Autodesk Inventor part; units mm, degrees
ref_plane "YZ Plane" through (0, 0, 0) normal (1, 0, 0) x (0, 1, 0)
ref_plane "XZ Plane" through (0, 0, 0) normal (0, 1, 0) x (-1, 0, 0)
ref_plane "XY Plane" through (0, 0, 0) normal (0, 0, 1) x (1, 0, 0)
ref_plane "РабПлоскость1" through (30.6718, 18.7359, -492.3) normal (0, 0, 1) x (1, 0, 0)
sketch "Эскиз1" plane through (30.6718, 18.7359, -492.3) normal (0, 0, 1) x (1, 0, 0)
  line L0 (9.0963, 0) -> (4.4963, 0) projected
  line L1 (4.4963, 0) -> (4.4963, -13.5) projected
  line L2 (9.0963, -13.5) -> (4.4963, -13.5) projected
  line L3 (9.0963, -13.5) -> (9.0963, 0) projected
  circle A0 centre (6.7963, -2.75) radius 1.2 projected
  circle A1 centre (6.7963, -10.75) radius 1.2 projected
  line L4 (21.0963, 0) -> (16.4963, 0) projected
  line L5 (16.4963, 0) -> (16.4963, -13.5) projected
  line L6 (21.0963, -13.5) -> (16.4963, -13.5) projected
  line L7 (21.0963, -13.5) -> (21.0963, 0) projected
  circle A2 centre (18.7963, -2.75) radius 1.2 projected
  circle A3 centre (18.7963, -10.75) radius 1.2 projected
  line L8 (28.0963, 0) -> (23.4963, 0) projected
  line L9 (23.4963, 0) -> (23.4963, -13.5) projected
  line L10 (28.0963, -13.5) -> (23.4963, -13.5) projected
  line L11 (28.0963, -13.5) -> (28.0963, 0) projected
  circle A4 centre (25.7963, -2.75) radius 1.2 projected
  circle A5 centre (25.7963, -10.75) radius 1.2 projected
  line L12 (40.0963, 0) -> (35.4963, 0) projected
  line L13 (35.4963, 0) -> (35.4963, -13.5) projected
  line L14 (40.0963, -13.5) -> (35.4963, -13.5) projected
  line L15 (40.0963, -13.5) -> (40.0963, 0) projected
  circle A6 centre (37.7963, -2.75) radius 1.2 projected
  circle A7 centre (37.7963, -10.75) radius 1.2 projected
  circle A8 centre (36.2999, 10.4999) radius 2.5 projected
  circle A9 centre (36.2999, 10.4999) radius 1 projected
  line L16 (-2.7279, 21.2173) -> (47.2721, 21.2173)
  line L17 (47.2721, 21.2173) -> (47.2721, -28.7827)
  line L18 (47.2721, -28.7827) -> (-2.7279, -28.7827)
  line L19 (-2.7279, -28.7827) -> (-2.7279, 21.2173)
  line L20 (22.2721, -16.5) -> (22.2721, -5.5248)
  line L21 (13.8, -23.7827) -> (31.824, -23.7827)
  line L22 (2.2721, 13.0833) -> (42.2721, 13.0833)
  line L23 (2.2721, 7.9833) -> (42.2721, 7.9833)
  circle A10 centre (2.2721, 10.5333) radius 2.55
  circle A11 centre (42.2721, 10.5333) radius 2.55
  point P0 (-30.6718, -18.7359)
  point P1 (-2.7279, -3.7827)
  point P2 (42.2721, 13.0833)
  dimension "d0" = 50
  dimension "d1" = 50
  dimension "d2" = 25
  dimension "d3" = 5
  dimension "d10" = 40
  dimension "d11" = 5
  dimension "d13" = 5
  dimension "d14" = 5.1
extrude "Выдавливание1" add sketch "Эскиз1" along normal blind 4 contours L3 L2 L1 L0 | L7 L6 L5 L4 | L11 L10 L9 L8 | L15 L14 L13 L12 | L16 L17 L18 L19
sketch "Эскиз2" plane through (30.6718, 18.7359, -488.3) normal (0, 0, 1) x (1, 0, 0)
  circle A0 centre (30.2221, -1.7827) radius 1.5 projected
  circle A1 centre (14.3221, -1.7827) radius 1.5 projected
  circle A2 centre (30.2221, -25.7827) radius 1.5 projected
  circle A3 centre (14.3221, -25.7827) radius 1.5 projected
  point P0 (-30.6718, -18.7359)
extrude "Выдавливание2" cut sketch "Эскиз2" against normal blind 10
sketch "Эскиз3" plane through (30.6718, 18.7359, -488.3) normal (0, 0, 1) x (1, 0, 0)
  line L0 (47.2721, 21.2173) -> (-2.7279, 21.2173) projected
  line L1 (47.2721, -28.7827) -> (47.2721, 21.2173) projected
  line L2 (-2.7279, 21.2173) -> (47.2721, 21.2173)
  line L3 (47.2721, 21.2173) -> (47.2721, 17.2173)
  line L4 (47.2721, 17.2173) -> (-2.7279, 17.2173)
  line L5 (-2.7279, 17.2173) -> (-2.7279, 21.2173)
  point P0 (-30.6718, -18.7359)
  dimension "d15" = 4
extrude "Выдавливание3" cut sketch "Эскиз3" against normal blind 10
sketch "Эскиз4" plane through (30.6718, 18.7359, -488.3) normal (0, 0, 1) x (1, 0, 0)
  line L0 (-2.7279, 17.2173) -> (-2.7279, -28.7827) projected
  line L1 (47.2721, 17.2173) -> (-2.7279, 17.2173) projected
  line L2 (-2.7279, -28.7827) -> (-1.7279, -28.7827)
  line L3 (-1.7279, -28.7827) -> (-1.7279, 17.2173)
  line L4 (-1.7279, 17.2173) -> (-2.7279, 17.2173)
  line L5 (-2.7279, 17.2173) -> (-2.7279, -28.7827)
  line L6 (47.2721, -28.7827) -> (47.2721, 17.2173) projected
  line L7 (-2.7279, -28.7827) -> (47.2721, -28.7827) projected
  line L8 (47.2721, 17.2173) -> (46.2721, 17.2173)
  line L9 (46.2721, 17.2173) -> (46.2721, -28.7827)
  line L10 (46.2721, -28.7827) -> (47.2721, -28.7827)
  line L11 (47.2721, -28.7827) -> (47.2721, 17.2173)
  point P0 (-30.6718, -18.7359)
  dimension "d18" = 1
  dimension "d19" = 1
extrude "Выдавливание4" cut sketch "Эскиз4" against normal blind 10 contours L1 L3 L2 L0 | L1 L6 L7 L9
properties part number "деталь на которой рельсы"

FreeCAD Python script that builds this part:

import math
import FreeCAD as App
import Part
import Sketcher
from FreeCAD import Vector
Q = App.Units.Quantity

doc = App.newDocument("Part")
body = doc.addObject("PartDesign::Body", "Body")

sketch1 = doc.addObject("Sketcher::SketchObject", "Sketch")
body.addObject(sketch1)
sketch1.AttachmentSupport = (doc.XY_Plane, [""])
sketch1.MapMode = "FlatFace"
sketch1.AttachmentOffset = App.Placement(Vector(0, 0, -492.3), App.Rotation())
sketch1.addGeometry([
    Part.LineSegment(Vector(77.9, 40, 0), Vector(27.9, 40, 0)),
    Part.LineSegment(Vector(27.9, 40, 0), Vector(27.9, -10, 0)),
    Part.LineSegment(Vector(27.9, -10, 0), Vector(77.9, -10, 0)),
    Part.LineSegment(Vector(77.9, -10, 0), Vector(77.9, 40, 0)),
    Part.Circle(Vector(37.5, 8, 0), Vector(0, 0, 1), 1.2),
    Part.Circle(Vector(37.5, 16, 0), Vector(0, 0, 1), 1.2),
    Part.LineSegment(Vector(72.9, 26.7, 0), Vector(32.9, 26.7, 0)),
    Part.ArcOfCircle(Part.Circle(Vector(32.9, 29.3, 0), Vector(0, 0, 1), 2.5), math.radians(90), math.radians(270)),
    Part.LineSegment(Vector(32.9, 31.8, 0), Vector(72.9, 31.8, 0)),
    Part.ArcOfCircle(Part.Circle(Vector(72.9, 29.3, 0), Vector(0, 0, 1), 2.5), math.radians(-90), math.radians(90)),
    Part.Circle(Vector(49.5, 8, 0), Vector(0, 0, 1), 1.2),
    Part.Circle(Vector(49.5, 16, 0), Vector(0, 0, 1), 1.2),
    Part.Circle(Vector(56.5, 8, 0), Vector(0, 0, 1), 1.2),
    Part.Circle(Vector(56.5, 16, 0), Vector(0, 0, 1), 1.2),
    Part.Circle(Vector(68.5, 8, 0), Vector(0, 0, 1), 1.2),
    Part.Circle(Vector(68.5, 16, 0), Vector(0, 0, 1), 1.2),
], False)
sketch1.addConstraint([
    Sketcher.Constraint("Coincident", 0, 2, 1, 1),
    Sketcher.Constraint("Coincident", 1, 2, 2, 1),
    Sketcher.Constraint("Coincident", 2, 2, 3, 1),
    Sketcher.Constraint("Coincident", 3, 2, 0, 1),
    Sketcher.Constraint("Tangent", 6, 2, 7, 2),
    Sketcher.Constraint("Tangent", 7, 1, 8, 1),
    Sketcher.Constraint("Tangent", 8, 2, 9, 2),
    Sketcher.Constraint("Tangent", 9, 1, 6, 1),
    Sketcher.Constraint("Horizontal", 0),
    Sketcher.Constraint("Vertical", 1),
    Sketcher.Constraint("Horizontal", 2),
    Sketcher.Constraint("Vertical", 3),
    Sketcher.Constraint("Horizontal", 6),
    Sketcher.Constraint("Horizontal", 8),
    Sketcher.Constraint("Equal", 4, 5),
    Sketcher.Constraint("Equal", 5, 10),
    Sketcher.Constraint("Equal", 10, 11),
    Sketcher.Constraint("Equal", 11, 12),
    Sketcher.Constraint("Equal", 12, 13),
    Sketcher.Constraint("Equal", 13, 14),
    Sketcher.Constraint("Equal", 14, 15),
    Sketcher.Constraint("Horizontal", 4, 3, 10, 3),
    Sketcher.Constraint("Horizontal", 5, 3, 11, 3),
    Sketcher.Constraint("Horizontal", 10, 3, 12, 3),
    Sketcher.Constraint("Horizontal", 11, 3, 13, 3),
    Sketcher.Constraint("Horizontal", 12, 3, 14, 3),
    Sketcher.Constraint("Horizontal", 13, 3, 15, 3),
    Sketcher.Constraint("Vertical", 4, 3, 5, 3),
    Sketcher.Constraint("Vertical", 10, 3, 11, 3),
    Sketcher.Constraint("Vertical", 12, 3, 13, 3),
    Sketcher.Constraint("Vertical", 14, 3, 15, 3),
    Sketcher.Constraint("Equal", 2, 1),
    Sketcher.Constraint("DistanceX", 0, 2, 0, 1, Q("50 mm")),
    Sketcher.Constraint("DistanceX", 6, 2, 6, 1, Q("40 mm")),
    Sketcher.Constraint("Radius", 7, Q("2.55 mm")),
    Sketcher.Constraint("DistanceX", 0, 2, 7, 3, Q("5 mm")),
    Sketcher.Constraint("Diameter", 4, Q("2.4 mm")),
    Sketcher.Constraint("DistanceY", 4, 3, 5, 3, Q("8 mm")),
    Sketcher.Constraint("DistanceX", 4, 3, 10, 3, Q("12 mm")),
    Sketcher.Constraint("DistanceX", 10, 3, 12, 3, Q("7 mm")),
    Sketcher.Constraint("DistanceX", 12, 3, 14, 3, Q("12 mm")),
    Sketcher.Constraint("DistanceX", -1, 1, 4, 3, Q("37.468 mm")),
    Sketcher.Constraint("DistanceY", -1, 1, 4, 3, Q("7.986 mm")),
    Sketcher.Constraint("DistanceX", -1, 1, 7, 3, Q("32.944 mm")),
    Sketcher.Constraint("DistanceY", 7, 3, 0, 2, Q("10.684 mm")),
    Sketcher.Constraint("DistanceY", -1, 1, 7, 3, Q("29.2692 mm")),
])
pad1 = doc.addObject("PartDesign::Pad", "Pad")
body.addObject(pad1)
pad1.Profile = sketch1
pad1.Length = 4

sketch2 = doc.addObject("Sketcher::SketchObject", "Sketch001")
body.addObject(sketch2)
sketch2.AttachmentSupport = (doc.XY_Plane, [""])
sketch2.MapMode = "FlatFace"
sketch2.AttachmentOffset = App.Placement(Vector(0, 0, -488.3), App.Rotation())
sketch2.addGeometry([
    Part.Circle(Vector(60.9, 17, 0), Vector(0, 0, 1), 1.5),
    Part.Circle(Vector(45, 17, 0), Vector(0, 0, 1), 1.5),
    Part.Circle(Vector(60.9, -7, 0), Vector(0, 0, 1), 1.5),
    Part.Circle(Vector(45, -7, 0), Vector(0, 0, 1), 1.5),
], False)
sketch2.addConstraint([
    Sketcher.Constraint("Equal", 0, 1),
    Sketcher.Constraint("Equal", 1, 2),
    Sketcher.Constraint("Equal", 2, 3),
    Sketcher.Constraint("Horizontal", 0, 3, 1, 3),
    Sketcher.Constraint("Horizontal", 2, 3, 3, 3),
    Sketcher.Constraint("Vertical", 0, 3, 2, 3),
    Sketcher.Constraint("Vertical", 1, 3, 3, 3),
    Sketcher.Constraint("Diameter", 0, Q("3 mm")),
    Sketcher.Constraint("DistanceY", 2, 3, 0, 3, Q("24 mm")),
    Sketcher.Constraint("DistanceX", 1, 3, 0, 3, Q("15.9 mm")),
    Sketcher.Constraint("DistanceX", -1, 1, 0, 3, Q("60.894 mm")),
    Sketcher.Constraint("DistanceY", -1, 1, 0, 3, Q("16.9532 mm")),
])
pocket1 = doc.addObject("PartDesign::Pocket", "Pocket")
body.addObject(pocket1)
pocket1.Profile = sketch2
pocket1.Length = 10

sketch3 = doc.addObject("Sketcher::SketchObject", "Sketch002")
body.addObject(sketch3)
sketch3.AttachmentSupport = (doc.XY_Plane, [""])
sketch3.MapMode = "FlatFace"
sketch3.AttachmentOffset = App.Placement(Vector(0, 0, -488.3), App.Rotation())
sketch3.addGeometry([
    Part.LineSegment(Vector(77.9, 36, 0), Vector(77.9, 40, 0)),
    Part.LineSegment(Vector(77.9, 40, 0), Vector(27.9, 40, 0)),
    Part.LineSegment(Vector(27.9, 40, 0), Vector(27.9, 36, 0)),
    Part.LineSegment(Vector(27.9, 36, 0), Vector(77.9, 36, 0)),
], False)
sketch3.addConstraint([
    Sketcher.Constraint("Coincident", 0, 2, 1, 1),
    Sketcher.Constraint("Coincident", 1, 2, 2, 1),
    Sketcher.Constraint("Coincident", 2, 2, 3, 1),
    Sketcher.Constraint("Coincident", 3, 2, 0, 1),
    Sketcher.Constraint("Vertical", 0),
    Sketcher.Constraint("Horizontal", 1),
    Sketcher.Constraint("Vertical", 2),
    Sketcher.Constraint("Horizontal", 3),
    Sketcher.Constraint("DistanceY", 0, 1, 0, 2, Q("4 mm")),
    Sketcher.Constraint("DistanceX", 1, 2, 1, 1, Q("50 mm")),
    Sketcher.Constraint("DistanceX", -1, 1, 0, 2, Q("77.944 mm")),
    Sketcher.Constraint("DistanceY", -1, 1, 0, 2, Q("39.9532 mm")),
])
pocket2 = doc.addObject("PartDesign::Pocket", "Pocket001")
body.addObject(pocket2)
pocket2.Profile = sketch3
pocket2.Length = 10

sketch4 = doc.addObject("Sketcher::SketchObject", "Sketch003")
body.addObject(sketch4)
sketch4.AttachmentSupport = (doc.XY_Plane, [""])
sketch4.MapMode = "FlatFace"
sketch4.AttachmentOffset = App.Placement(Vector(0, 0, -488.3), App.Rotation())
sketch4.addGeometry([
    Part.LineSegment(Vector(28.9, 36, 0), Vector(27.9, 36, 0)),
    Part.LineSegment(Vector(27.9, 36, 0), Vector(27.9, -10, 0)),
    Part.LineSegment(Vector(27.9, -10, 0), Vector(28.9, -10, 0)),
    Part.LineSegment(Vector(28.9, -10, 0), Vector(28.9, 36, 0)),
    Part.LineSegment(Vector(77.9, 36, 0), Vector(76.9, 36, 0)),
    Part.LineSegment(Vector(76.9, 36, 0), Vector(76.9, -10, 0)),
    Part.LineSegment(Vector(76.9, -10, 0), Vector(77.9, -10, 0)),
    Part.LineSegment(Vector(77.9, -10, 0), Vector(77.9, 36, 0)),
], False)
sketch4.addConstraint([
    Sketcher.Constraint("Coincident", 0, 2, 1, 1),
    Sketcher.Constraint("Coincident", 1, 2, 2, 1),
    Sketcher.Constraint("Coincident", 2, 2, 3, 1),
    Sketcher.Constraint("Coincident", 3, 2, 0, 1),
    Sketcher.Constraint("Coincident", 4, 2, 5, 1),
    Sketcher.Constraint("Coincident", 5, 2, 6, 1),
    Sketcher.Constraint("Coincident", 6, 2, 7, 1),
    Sketcher.Constraint("Coincident", 7, 2, 4, 1),
    Sketcher.Constraint("Horizontal", 0),
    Sketcher.Constraint("Vertical", 1),
    Sketcher.Constraint("Horizontal", 2),
    Sketcher.Constraint("Vertical", 3),
    Sketcher.Constraint("Horizontal", 4),
    Sketcher.Constraint("Vertical", 5),
    Sketcher.Constraint("Horizontal", 6),
    Sketcher.Constraint("Vertical", 7),
    Sketcher.Constraint("Horizontal", 3, 2, 4, 2),
    Sketcher.Constraint("Horizontal", 2, 2, 5, 2),
    Sketcher.Constraint("Equal", 2, 4),
    Sketcher.Constraint("DistanceX", 0, 2, 0, 1, Q("1 mm")),
    Sketcher.Constraint("DistanceY", 1, 2, 1, 1, Q("46 mm")),
    Sketcher.Constraint("DistanceX", 3, 2, 4, 2, Q("48 mm")),
    Sketcher.Constraint("DistanceX", -1, 1, 0, 2, Q("27.944 mm")),
    Sketcher.Constraint("DistanceY", -1, 1, 0, 2, Q("35.9532 mm")),
])
pocket3 = doc.addObject("PartDesign::Pocket", "Pocket002")
body.addObject(pocket3)
pocket3.Profile = sketch4
pocket3.Length = 10

doc.recompute()
